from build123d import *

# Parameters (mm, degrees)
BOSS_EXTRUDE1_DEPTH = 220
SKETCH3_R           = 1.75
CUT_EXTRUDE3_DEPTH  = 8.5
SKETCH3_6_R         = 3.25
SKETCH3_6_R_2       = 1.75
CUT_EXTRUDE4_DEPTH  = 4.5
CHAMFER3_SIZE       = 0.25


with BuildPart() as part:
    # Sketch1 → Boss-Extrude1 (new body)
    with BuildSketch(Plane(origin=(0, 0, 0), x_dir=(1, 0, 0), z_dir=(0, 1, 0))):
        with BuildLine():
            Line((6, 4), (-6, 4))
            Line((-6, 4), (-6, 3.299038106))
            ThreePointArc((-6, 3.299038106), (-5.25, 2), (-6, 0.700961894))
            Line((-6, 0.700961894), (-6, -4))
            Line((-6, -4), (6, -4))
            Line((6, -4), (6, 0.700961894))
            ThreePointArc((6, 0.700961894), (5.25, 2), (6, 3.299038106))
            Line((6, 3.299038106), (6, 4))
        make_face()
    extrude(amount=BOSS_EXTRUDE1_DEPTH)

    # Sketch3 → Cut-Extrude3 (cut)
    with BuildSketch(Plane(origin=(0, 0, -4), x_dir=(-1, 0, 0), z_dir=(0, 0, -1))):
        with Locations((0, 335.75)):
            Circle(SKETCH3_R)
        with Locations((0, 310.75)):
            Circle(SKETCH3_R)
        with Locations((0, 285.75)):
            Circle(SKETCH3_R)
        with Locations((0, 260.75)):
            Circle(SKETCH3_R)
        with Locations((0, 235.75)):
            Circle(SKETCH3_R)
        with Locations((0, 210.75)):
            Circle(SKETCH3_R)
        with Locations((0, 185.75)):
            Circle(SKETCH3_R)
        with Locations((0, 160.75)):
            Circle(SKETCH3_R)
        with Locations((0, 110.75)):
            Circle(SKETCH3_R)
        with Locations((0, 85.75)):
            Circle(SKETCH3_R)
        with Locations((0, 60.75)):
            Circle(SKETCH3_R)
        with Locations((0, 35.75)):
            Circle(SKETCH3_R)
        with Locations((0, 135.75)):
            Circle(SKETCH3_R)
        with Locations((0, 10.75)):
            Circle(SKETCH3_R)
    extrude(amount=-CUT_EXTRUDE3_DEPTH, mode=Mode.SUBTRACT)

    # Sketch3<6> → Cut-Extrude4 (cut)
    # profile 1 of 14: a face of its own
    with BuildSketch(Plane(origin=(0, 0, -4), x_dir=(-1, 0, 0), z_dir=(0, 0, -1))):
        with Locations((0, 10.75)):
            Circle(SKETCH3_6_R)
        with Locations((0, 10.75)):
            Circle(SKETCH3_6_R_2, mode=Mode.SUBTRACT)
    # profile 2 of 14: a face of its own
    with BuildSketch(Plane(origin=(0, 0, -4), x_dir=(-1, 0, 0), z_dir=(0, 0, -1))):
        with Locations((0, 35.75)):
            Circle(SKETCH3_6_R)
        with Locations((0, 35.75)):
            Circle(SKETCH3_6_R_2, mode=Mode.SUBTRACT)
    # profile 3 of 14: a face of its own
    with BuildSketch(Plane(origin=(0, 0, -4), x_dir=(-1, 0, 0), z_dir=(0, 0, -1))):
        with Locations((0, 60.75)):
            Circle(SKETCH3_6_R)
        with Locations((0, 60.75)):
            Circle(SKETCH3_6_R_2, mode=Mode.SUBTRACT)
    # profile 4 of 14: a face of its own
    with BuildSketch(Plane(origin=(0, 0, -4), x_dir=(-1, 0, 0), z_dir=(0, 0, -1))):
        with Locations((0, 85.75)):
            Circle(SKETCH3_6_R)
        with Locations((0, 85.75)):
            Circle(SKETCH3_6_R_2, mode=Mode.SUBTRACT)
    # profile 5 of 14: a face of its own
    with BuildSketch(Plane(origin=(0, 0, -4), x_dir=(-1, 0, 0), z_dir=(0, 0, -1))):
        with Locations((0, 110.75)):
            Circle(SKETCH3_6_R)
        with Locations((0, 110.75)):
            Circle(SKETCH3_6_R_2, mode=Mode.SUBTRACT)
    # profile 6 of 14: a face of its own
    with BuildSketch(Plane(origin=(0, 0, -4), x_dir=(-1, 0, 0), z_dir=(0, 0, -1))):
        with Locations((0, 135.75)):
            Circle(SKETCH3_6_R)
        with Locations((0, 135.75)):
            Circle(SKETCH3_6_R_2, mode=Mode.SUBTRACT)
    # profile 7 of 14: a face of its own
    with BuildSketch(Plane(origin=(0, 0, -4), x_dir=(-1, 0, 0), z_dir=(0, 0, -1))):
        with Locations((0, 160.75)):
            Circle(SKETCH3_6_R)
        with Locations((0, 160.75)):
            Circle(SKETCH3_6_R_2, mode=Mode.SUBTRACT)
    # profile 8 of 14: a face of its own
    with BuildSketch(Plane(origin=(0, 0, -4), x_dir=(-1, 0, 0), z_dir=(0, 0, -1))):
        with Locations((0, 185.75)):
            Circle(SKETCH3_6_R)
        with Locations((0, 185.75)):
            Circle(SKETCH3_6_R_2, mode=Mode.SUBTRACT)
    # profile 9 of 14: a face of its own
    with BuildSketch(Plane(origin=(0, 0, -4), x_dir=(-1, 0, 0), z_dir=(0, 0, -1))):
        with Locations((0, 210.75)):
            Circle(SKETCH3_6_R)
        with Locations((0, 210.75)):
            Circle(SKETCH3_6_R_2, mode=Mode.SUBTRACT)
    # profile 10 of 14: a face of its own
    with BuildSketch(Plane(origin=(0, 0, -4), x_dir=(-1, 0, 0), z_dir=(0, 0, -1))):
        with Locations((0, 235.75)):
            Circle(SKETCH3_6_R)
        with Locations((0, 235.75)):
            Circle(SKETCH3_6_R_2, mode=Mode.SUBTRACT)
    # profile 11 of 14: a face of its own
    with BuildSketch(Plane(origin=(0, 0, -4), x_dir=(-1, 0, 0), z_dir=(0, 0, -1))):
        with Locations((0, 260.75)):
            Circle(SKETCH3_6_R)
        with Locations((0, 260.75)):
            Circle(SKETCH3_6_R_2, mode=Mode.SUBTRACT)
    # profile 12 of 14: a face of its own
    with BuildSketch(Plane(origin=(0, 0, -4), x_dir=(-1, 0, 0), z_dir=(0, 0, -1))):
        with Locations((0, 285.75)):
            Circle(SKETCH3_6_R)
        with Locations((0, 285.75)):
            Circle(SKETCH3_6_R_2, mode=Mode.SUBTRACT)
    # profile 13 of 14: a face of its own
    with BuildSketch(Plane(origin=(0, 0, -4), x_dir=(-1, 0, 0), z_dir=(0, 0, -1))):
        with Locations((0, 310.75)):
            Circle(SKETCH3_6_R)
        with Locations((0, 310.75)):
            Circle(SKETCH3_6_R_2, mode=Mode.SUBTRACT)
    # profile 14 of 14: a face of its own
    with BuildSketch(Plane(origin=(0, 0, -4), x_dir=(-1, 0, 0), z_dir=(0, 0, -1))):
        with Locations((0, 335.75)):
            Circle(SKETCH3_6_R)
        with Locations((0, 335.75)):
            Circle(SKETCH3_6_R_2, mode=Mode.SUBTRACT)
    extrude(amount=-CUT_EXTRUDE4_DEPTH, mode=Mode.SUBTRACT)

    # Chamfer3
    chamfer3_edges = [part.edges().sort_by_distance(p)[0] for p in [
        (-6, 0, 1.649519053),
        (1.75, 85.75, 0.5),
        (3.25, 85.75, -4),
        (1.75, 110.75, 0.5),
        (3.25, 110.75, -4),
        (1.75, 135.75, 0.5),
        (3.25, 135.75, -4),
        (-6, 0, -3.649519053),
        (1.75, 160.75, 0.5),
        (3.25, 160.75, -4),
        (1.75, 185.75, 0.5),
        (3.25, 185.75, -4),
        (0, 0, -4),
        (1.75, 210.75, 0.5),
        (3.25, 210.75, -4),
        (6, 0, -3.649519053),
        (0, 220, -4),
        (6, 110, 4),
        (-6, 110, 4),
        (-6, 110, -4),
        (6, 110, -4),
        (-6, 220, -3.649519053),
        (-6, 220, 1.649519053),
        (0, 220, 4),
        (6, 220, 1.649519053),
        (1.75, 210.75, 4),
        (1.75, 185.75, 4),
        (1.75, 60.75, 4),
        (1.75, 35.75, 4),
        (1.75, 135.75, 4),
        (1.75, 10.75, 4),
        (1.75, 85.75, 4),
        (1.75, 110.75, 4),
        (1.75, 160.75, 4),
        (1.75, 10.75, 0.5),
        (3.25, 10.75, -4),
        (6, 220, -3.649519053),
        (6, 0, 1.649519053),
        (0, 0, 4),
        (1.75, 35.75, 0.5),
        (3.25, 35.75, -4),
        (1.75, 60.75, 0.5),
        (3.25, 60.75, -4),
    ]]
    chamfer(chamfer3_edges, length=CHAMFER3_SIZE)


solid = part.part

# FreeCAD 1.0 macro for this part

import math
import FreeCAD as App
import Part
import Sketcher

V = App.Vector


def edges_at(feature, points):
    """Names of the edges that pass closest to the given points."""
    edges = feature.Shape.Edges
    near = lambda p: min(range(len(edges)), key=lambda i: edges[i].distToShape(Part.Vertex(*p))[0])
    return sorted({f"Edge{near(p) + 1}" for p in points})

doc = App.newDocument("Part")
body = doc.addObject("PartDesign::Body", "Body")

# Sketch on XZ plane
sketch1 = doc.addObject("Sketcher::SketchObject", "Sketch")
body.addObject(sketch1)
sketch1.AttachmentSupport = (doc.XZ_Plane, [""])
sketch1.MapMode = "FlatFace"
sketch1.addGeometry(Part.LineSegment(V(6, -4, 0), V(-6, -4, 0)), False)
sketch1.addGeometry(Part.LineSegment(V(-6, -4, 0), V(-6, -3.3, 0)), False)
sketch1.addGeometry(Part.ArcOfCircle(Part.Circle(V(-6.8, -2, 0), V(0, 0, 1), 1.5), math.radians(-60), math.radians(60)), False)
sketch1.addGeometry(Part.LineSegment(V(-6, -0.7, 0), V(-6, 4, 0)), False)
sketch1.addGeometry(Part.LineSegment(V(-6, 4, 0), V(6, 4, 0)), False)
sketch1.addGeometry(Part.LineSegment(V(6, 4, 0), V(6, -0.7, 0)), False)
sketch1.addGeometry(Part.ArcOfCircle(Part.Circle(V(6.8, -2, 0), V(0, 0, 1), 1.5), math.radians(120), math.radians(240)), False)
sketch1.addGeometry(Part.LineSegment(V(6, -3.3, 0), V(6, -4, 0)), False)
sketch1.addConstraint(Sketcher.Constraint("Coincident", 0, 2, 1, 1))
sketch1.addConstraint(Sketcher.Constraint("Coincident", 1, 2, 2, 1))
sketch1.addConstraint(Sketcher.Constraint("Coincident", 2, 2, 3, 1))
sketch1.addConstraint(Sketcher.Constraint("Coincident", 3, 2, 4, 1))
sketch1.addConstraint(Sketcher.Constraint("Coincident", 4, 2, 5, 1))
sketch1.addConstraint(Sketcher.Constraint("Coincident", 5, 2, 6, 1))
sketch1.addConstraint(Sketcher.Constraint("Coincident", 6, 2, 7, 1))
sketch1.addConstraint(Sketcher.Constraint("Coincident", 7, 2, 0, 1))
sketch1.addConstraint(Sketcher.Constraint("Horizontal", 0))
sketch1.addConstraint(Sketcher.Constraint("Vertical", 1))
sketch1.addConstraint(Sketcher.Constraint("Vertical", 3))
sketch1.addConstraint(Sketcher.Constraint("Horizontal", 4))
sketch1.addConstraint(Sketcher.Constraint("Vertical", 5))
sketch1.addConstraint(Sketcher.Constraint("Vertical", 7))
sketch1.addConstraint(Sketcher.Constraint("Equal", 2, 6))
sketch1.addConstraint(Sketcher.Constraint("Symmetric", 0, 2, 4, 2, -1, 1))
sketch1.addConstraint(Sketcher.Constraint("Symmetric", 2, 3, 6, 3, -2))
sketch1.addConstraint(Sketcher.Constraint("Horizontal", 2, 2, 5, 2))
sketch1.addConstraint(Sketcher.Constraint("Horizontal", 1, 2, 6, 2))
sketch1.addConstraint(Sketcher.Constraint("Radius", 2, 1.5))
sketch1.addConstraint(Sketcher.Constraint("DistanceX", 0, 2, 0, 1, 12.0))
sketch1.addConstraint(Sketcher.Constraint("DistanceY", 2, 3, -1, 1, 2.0))
sketch1.addConstraint(Sketcher.Constraint("DistanceY", 0, 2, -1, 1, 4.0))
sketch1.addConstraint(Sketcher.Constraint("DistanceX", 2, 3, 6, 3, 13.5))
pad1 = doc.addObject("PartDesign::Pad", "Pad")
body.addObject(pad1)
pad1.Profile = sketch1
pad1.Length = 220
pad1.Reversed = True

# Sketch on XY plane
sketch2 = doc.addObject("Sketcher::SketchObject", "Sketch001")
body.addObject(sketch2)
sketch2.AttachmentSupport = (doc.XY_Plane, [""])
sketch2.MapMode = "FlatFace"
sketch2.AttachmentOffset = App.Placement(V(0, 0, -4), App.Rotation())
sketch2.addGeometry(Part.Circle(V(0, 335.8, 0), V(0, 0, 1), 1.8), False)
sketch2.addGeometry(Part.Circle(V(0, 310.8, 0), V(0, 0, 1), 1.8), False)
sketch2.addGeometry(Part.Circle(V(0, 285.8, 0), V(0, 0, 1), 1.8), False)
sketch2.addGeometry(Part.Circle(V(0, 260.8, 0), V(0, 0, 1), 1.8), False)
sketch2.addGeometry(Part.Circle(V(0, 235.8, 0), V(0, 0, 1), 1.8), False)
sketch2.addGeometry(Part.Circle(V(0, 210.8, 0), V(0, 0, 1), 1.8), False)
sketch2.addGeometry(Part.Circle(V(0, 185.8, 0), V(0, 0, 1), 1.8), False)
sketch2.addGeometry(Part.Circle(V(0, 160.8, 0), V(0, 0, 1), 1.8), False)
sketch2.addGeometry(Part.Circle(V(0, 110.8, 0), V(0, 0, 1), 1.8), False)
sketch2.addGeometry(Part.Circle(V(0, 85.8, 0), V(0, 0, 1), 1.8), False)
sketch2.addGeometry(Part.Circle(V(0, 60.8, 0), V(0, 0, 1), 1.8), False)
sketch2.addGeometry(Part.Circle(V(0, 35.8, 0), V(0, 0, 1), 1.8), False)
sketch2.addGeometry(Part.Circle(V(0, 135.8, 0), V(0, 0, 1), 1.8), False)
sketch2.addGeometry(Part.Circle(V(0, 10.8, 0), V(0, 0, 1), 1.8), False)
sketch2.addConstraint(Sketcher.Constraint("Equal", 0, 1))
sketch2.addConstraint(Sketcher.Constraint("Equal", 1, 2))
sketch2.addConstraint(Sketcher.Constraint("Equal", 2, 3))
sketch2.addConstraint(Sketcher.Constraint("Equal", 3, 4))
sketch2.addConstraint(Sketcher.Constraint("Equal", 4, 5))
sketch2.addConstraint(Sketcher.Constraint("Equal", 5, 6))
sketch2.addConstraint(Sketcher.Constraint("Equal", 6, 7))
sketch2.addConstraint(Sketcher.Constraint("Equal", 7, 8))
sketch2.addConstraint(Sketcher.Constraint("Equal", 8, 9))
sketch2.addConstraint(Sketcher.Constraint("Equal", 9, 10))
sketch2.addConstraint(Sketcher.Constraint("Equal", 10, 11))
sketch2.addConstraint(Sketcher.Constraint("Equal", 11, 12))
sketch2.addConstraint(Sketcher.Constraint("Equal", 12, 13))
sketch2.addConstraint(Sketcher.Constraint("PointOnObject", 0, 3, -2))
sketch2.addConstraint(Sketcher.Constraint("PointOnObject", 1, 3, -2))
sketch2.addConstraint(Sketcher.Constraint("PointOnObject", 2, 3, -2))
sketch2.addConstraint(Sketcher.Constraint("PointOnObject", 3, 3, -2))
sketch2.addConstraint(Sketcher.Constraint("PointOnObject", 4, 3, -2))
sketch2.addConstraint(Sketcher.Constraint("PointOnObject", 5, 3, -2))
sketch2.addConstraint(Sketcher.Constraint("PointOnObject", 6, 3, -2))
sketch2.addConstraint(Sketcher.Constraint("PointOnObject", 7, 3, -2))
sketch2.addConstraint(Sketcher.Constraint("PointOnObject", 8, 3, -2))
sketch2.addConstraint(Sketcher.Constraint("PointOnObject", 9, 3, -2))
sketch2.addConstraint(Sketcher.Constraint("PointOnObject", 10, 3, -2))
sketch2.addConstraint(Sketcher.Constraint("PointOnObject", 11, 3, -2))
sketch2.addConstraint(Sketcher.Constraint("PointOnObject", 12, 3, -2))
sketch2.addConstraint(Sketcher.Constraint("PointOnObject", 13, 3, -2))
sketch2.addConstraint(Sketcher.Constraint("Diameter", 0, 3.5))
sketch2.addConstraint(Sketcher.Constraint("DistanceY", 1, 3, 0, 3, 25.0))
sketch2.addConstraint(Sketcher.Constraint("DistanceY", 2, 3, 1, 3, 25.0))
sketch2.addConstraint(Sketcher.Constraint("DistanceY", 3, 3, 2, 3, 25.0))
sketch2.addConstraint(Sketcher.Constraint("DistanceY", 4, 3, 3, 3, 25.0))
sketch2.addConstraint(Sketcher.Constraint("DistanceY", 5, 3, 4, 3, 25.0))
sketch2.addConstraint(Sketcher.Constraint("DistanceY", 6, 3, 5, 3, 25.0))
sketch2.addConstraint(Sketcher.Constraint("DistanceY", 7, 3, 6, 3, 25.0))
sketch2.addConstraint(Sketcher.Constraint("DistanceY", 8, 3, 7, 3, 50.0))
sketch2.addConstraint(Sketcher.Constraint("DistanceY", 9, 3, 8, 3, 25.0))
sketch2.addConstraint(Sketcher.Constraint("DistanceY", 10, 3, 9, 3, 25.0))
sketch2.addConstraint(Sketcher.Constraint("DistanceY", 11, 3, 10, 3, 25.0))
sketch2.addConstraint(Sketcher.Constraint("DistanceY", 12, 3, 7, 3, 25.0))
sketch2.addConstraint(Sketcher.Constraint("DistanceY", 13, 3, 11, 3, 25.0))
sketch2.addConstraint(Sketcher.Constraint("DistanceY", -1, 1, 0, 3, 335.75))
pocket1 = doc.addObject("PartDesign::Pocket", "Pocket")
body.addObject(pocket1)
pocket1.Profile = sketch2
pocket1.Length = 8.5
pocket1.Reversed = True

# Sketch on XY plane
sketch3 = doc.addObject("Sketcher::SketchObject", "Sketch002")
body.addObject(sketch3)
sketch3.AttachmentSupport = (doc.XY_Plane, [""])
sketch3.MapMode = "FlatFace"
sketch3.AttachmentOffset = App.Placement(V(0, 0, -4), App.Rotation())
sketch3.addGeometry(Part.Circle(V(0, 10.8, 0), V(0, 0, 1), 3.2), False)
sketch3.addGeometry(Part.Circle(V(0, 10.8, 0), V(0, 0, 1), 1.8), False)
sketch3.addGeometry(Part.Circle(V(0, 35.8, 0), V(0, 0, 1), 3.2), False)
sketch3.addGeometry(Part.Circle(V(0, 35.8, 0), V(0, 0, 1), 1.8), False)
sketch3.addGeometry(Part.Circle(V(0, 60.8, 0), V(0, 0, 1), 3.2), False)
sketch3.addGeometry(Part.Circle(V(0, 60.8, 0), V(0, 0, 1), 1.8), False)
sketch3.addGeometry(Part.Circle(V(0, 85.8, 0), V(0, 0, 1), 3.2), False)
sketch3.addGeometry(Part.Circle(V(0, 85.8, 0), V(0, 0, 1), 1.8), False)
sketch3.addGeometry(Part.Circle(V(0, 110.8, 0), V(0, 0, 1), 3.2), False)
sketch3.addGeometry(Part.Circle(V(0, 110.8, 0), V(0, 0, 1), 1.8), False)
sketch3.addGeometry(Part.Circle(V(0, 135.8, 0), V(0, 0, 1), 3.2), False)
sketch3.addGeometry(Part.Circle(V(0, 135.8, 0), V(0, 0, 1), 1.8), False)
sketch3.addGeometry(Part.Circle(V(0, 160.8, 0), V(0, 0, 1), 3.2), False)
sketch3.addGeometry(Part.Circle(V(0, 160.8, 0), V(0, 0, 1), 1.8), False)
sketch3.addGeometry(Part.Circle(V(0, 185.8, 0), V(0, 0, 1), 3.2), False)
sketch3.addGeometry(Part.Circle(V(0, 185.8, 0), V(0, 0, 1), 1.8), False)
sketch3.addGeometry(Part.Circle(V(0, 210.8, 0), V(0, 0, 1), 3.2), False)
sketch3.addGeometry(Part.Circle(V(0, 210.8, 0), V(0, 0, 1), 1.8), False)
sketch3.addGeometry(Part.Circle(V(0, 235.8, 0), V(0, 0, 1), 3.2), False)
sketch3.addGeometry(Part.Circle(V(0, 235.8, 0), V(0, 0, 1), 1.8), False)
sketch3.addGeometry(Part.Circle(V(0, 260.8, 0), V(0, 0, 1), 3.2), False)
sketch3.addGeometry(Part.Circle(V(0, 260.8, 0), V(0, 0, 1), 1.8), False)
sketch3.addGeometry(Part.Circle(V(0, 285.8, 0), V(0, 0, 1), 3.2), False)
sketch3.addGeometry(Part.Circle(V(0, 285.8, 0), V(0, 0, 1), 1.8), False)
sketch3.addGeometry(Part.Circle(V(0, 310.8, 0), V(0, 0, 1), 3.2), False)
sketch3.addGeometry(Part.Circle(V(0, 310.8, 0), V(0, 0, 1), 1.8), False)
sketch3.addGeometry(Part.Circle(V(0, 335.8, 0), V(0, 0, 1), 3.2), False)
sketch3.addGeometry(Part.Circle(V(0, 335.8, 0), V(0, 0, 1), 1.8), False)
sketch3.addConstraint(Sketcher.Constraint("Coincident", 1, 3, 0, 3))
sketch3.addConstraint(Sketcher.Constraint("Coincident", 3, 3, 2, 3))
sketch3.addConstraint(Sketcher.Constraint("Coincident", 5, 3, 4, 3))
sketch3.addConstraint(Sketcher.Constraint("Coincident", 7, 3, 6, 3))
sketch3.addConstraint(Sketcher.Constraint("Coincident", 9, 3, 8, 3))
sketch3.addConstraint(Sketcher.Constraint("Coincident", 11, 3, 10, 3))
sketch3.addConstraint(Sketcher.Constraint("Coincident", 13, 3, 12, 3))
sketch3.addConstraint(Sketcher.Constraint("Coincident", 15, 3, 14, 3))
sketch3.addConstraint(Sketcher.Constraint("Coincident", 17, 3, 16, 3))
sketch3.addConstraint(Sketcher.Constraint("Coincident", 19, 3, 18, 3))
sketch3.addConstraint(Sketcher.Constraint("Coincident", 21, 3, 20, 3))
sketch3.addConstraint(Sketcher.Constraint("Coincident", 23, 3, 22, 3))
sketch3.addConstraint(Sketcher.Constraint("Coincident", 25, 3, 24, 3))
sketch3.addConstraint(Sketcher.Constraint("Coincident", 27, 3, 26, 3))
sketch3.addConstraint(Sketcher.Constraint("Equal", 0, 2))
sketch3.addConstraint(Sketcher.Constraint("Equal", 1, 3))
sketch3.addConstraint(Sketcher.Constraint("Equal", 2, 4))
sketch3.addConstraint(Sketcher.Constraint("Equal", 3, 5))
sketch3.addConstraint(Sketcher.Constraint("Equal", 4, 6))
sketch3.addConstraint(Sketcher.Constraint("Equal", 5, 7))
sketch3.addConstraint(Sketcher.Constraint("Equal", 6, 8))
sketch3.addConstraint(Sketcher.Constraint("Equal", 7, 9))
sketch3.addConstraint(Sketcher.Constraint("Equal", 8, 10))
sketch3.addConstraint(Sketcher.Constraint("Equal", 9, 11))
sketch3.addConstraint(Sketcher.Constraint("Equal", 10, 12))
sketch3.addConstraint(Sketcher.Constraint("Equal", 11, 13))
sketch3.addConstraint(Sketcher.Constraint("Equal", 12, 14))
sketch3.addConstraint(Sketcher.Constraint("Equal", 13, 15))
sketch3.addConstraint(Sketcher.Constraint("Equal", 14, 16))
sketch3.addConstraint(Sketcher.Constraint("Equal", 15, 17))
sketch3.addConstraint(Sketcher.Constraint("Equal", 16, 18))
sketch3.addConstraint(Sketcher.Constraint("Equal", 17, 19))
sketch3.addConstraint(Sketcher.Constraint("Equal", 18, 20))
sketch3.addConstraint(Sketcher.Constraint("Equal", 19, 21))
sketch3.addConstraint(Sketcher.Constraint("Equal", 20, 22))
sketch3.addConstraint(Sketcher.Constraint("Equal", 21, 23))
sketch3.addConstraint(Sketcher.Constraint("Equal", 22, 24))
sketch3.addConstraint(Sketcher.Constraint("Equal", 23, 25))
sketch3.addConstraint(Sketcher.Constraint("Equal", 24, 26))
sketch3.addConstraint(Sketcher.Constraint("Equal", 25, 27))
sketch3.addConstraint(Sketcher.Constraint("PointOnObject", 0, 3, -2))
sketch3.addConstraint(Sketcher.Constraint("PointOnObject", 2, 3, -2))
sketch3.addConstraint(Sketcher.Constraint("PointOnObject", 4, 3, -2))
sketch3.addConstraint(Sketcher.Constraint("PointOnObject", 6, 3, -2))
sketch3.addConstraint(Sketcher.Constraint("PointOnObject", 8, 3, -2))
sketch3.addConstraint(Sketcher.Constraint("PointOnObject", 10, 3, -2))
sketch3.addConstraint(Sketcher.Constraint("PointOnObject", 12, 3, -2))
sketch3.addConstraint(Sketcher.Constraint("PointOnObject", 14, 3, -2))
sketch3.addConstraint(Sketcher.Constraint("PointOnObject", 16, 3, -2))
sketch3.addConstraint(Sketcher.Constraint("PointOnObject", 18, 3, -2))
sketch3.addConstraint(Sketcher.Constraint("PointOnObject", 20, 3, -2))
sketch3.addConstraint(Sketcher.Constraint("PointOnObject", 22, 3, -2))
sketch3.addConstraint(Sketcher.Constraint("PointOnObject", 24, 3, -2))
sketch3.addConstraint(Sketcher.Constraint("PointOnObject", 26, 3, -2))
sketch3.addConstraint(Sketcher.Constraint("Diameter", 0, 6.5))
sketch3.addConstraint(Sketcher.Constraint("Diameter", 1, 3.5))
sketch3.addConstraint(Sketcher.Constraint("DistanceY", 0, 3, 2, 3, 25.0))
sketch3.addConstraint(Sketcher.Constraint("DistanceY", 2, 3, 4, 3, 25.0))
sketch3.addConstraint(Sketcher.Constraint("DistanceY", 4, 3, 6, 3, 25.0))
sketch3.addConstraint(Sketcher.Constraint("DistanceY", 6, 3, 8, 3, 25.0))
sketch3.addConstraint(Sketcher.Constraint("DistanceY", 8, 3, 10, 3, 25.0))
sketch3.addConstraint(Sketcher.Constraint("DistanceY", 10, 3, 12, 3, 25.0))
sketch3.addConstraint(Sketcher.Constraint("DistanceY", 12, 3, 14, 3, 25.0))
sketch3.addConstraint(Sketcher.Constraint("DistanceY", 14, 3, 16, 3, 25.0))
sketch3.addConstraint(Sketcher.Constraint("DistanceY", 16, 3, 18, 3, 25.0))
sketch3.addConstraint(Sketcher.Constraint("DistanceY", 18, 3, 20, 3, 25.0))
sketch3.addConstraint(Sketcher.Constraint("DistanceY", 20, 3, 22, 3, 25.0))
sketch3.addConstraint(Sketcher.Constraint("DistanceY", 22, 3, 24, 3, 25.0))
sketch3.addConstraint(Sketcher.Constraint("DistanceY", 24, 3, 26, 3, 25.0))
sketch3.addConstraint(Sketcher.Constraint("DistanceY", -1, 1, 0, 3, 10.75))
pocket2 = doc.addObject("PartDesign::Pocket", "Pocket001")
body.addObject(pocket2)
pocket2.Profile = sketch3
pocket2.Length = 4.5
pocket2.Reversed = True
doc.recompute()

chamfer = doc.addObject("PartDesign::Chamfer", "Chamfer")
body.addObject(chamfer)
chamfer.Base = (pocket2, edges_at(pocket2, [
    (-6, 0, 1.65),
    (1.75, 85.75, 0.5),
    (3.25, 85.75, -4),
    (1.75, 110.75, 0.5),
    (3.25, 110.75, -4),
    (1.75, 135.75, 0.5),
    (3.25, 135.75, -4),
    (-6, 0, -3.65),
    (1.75, 160.75, 0.5),
    (3.25, 160.75, -4),
    (1.75, 185.75, 0.5),
    (3.25, 185.75, -4),
    (0, 0, -4),
    (1.75, 210.75, 0.5),
    (3.25, 210.75, -4),
    (6, 0, -3.65),
    (0, 220, -4),
    (6, 110, 4),
    (-6, 110, 4),
    (-6, 110, -4),
    (6, 110, -4),
    (-6, 220, -3.65),
    (-6, 220, 1.65),
    (0, 220, 4),
    (6, 220, 1.65),
    (1.75, 210.75, 4),
    (1.75, 185.75, 4),
    (1.75, 60.75, 4),
    (1.75, 35.75, 4),
    (1.75, 135.75, 4),
    (1.75, 10.75, 4),
    (1.75, 85.75, 4),
    (1.75, 110.75, 4),
    (1.75, 160.75, 4),
    (1.75, 10.75, 0.5),
    (3.25, 10.75, -4),
    (6, 220, -3.65),
    (6, 0, 1.65),
    (0, 0, 4),
    (1.75, 35.75, 0.5),
    (3.25, 35.75, -4),
    (1.75, 60.75, 0.5),
    (3.25, 60.75, -4),
]))
chamfer.Size = 0.25

doc.recompute()
